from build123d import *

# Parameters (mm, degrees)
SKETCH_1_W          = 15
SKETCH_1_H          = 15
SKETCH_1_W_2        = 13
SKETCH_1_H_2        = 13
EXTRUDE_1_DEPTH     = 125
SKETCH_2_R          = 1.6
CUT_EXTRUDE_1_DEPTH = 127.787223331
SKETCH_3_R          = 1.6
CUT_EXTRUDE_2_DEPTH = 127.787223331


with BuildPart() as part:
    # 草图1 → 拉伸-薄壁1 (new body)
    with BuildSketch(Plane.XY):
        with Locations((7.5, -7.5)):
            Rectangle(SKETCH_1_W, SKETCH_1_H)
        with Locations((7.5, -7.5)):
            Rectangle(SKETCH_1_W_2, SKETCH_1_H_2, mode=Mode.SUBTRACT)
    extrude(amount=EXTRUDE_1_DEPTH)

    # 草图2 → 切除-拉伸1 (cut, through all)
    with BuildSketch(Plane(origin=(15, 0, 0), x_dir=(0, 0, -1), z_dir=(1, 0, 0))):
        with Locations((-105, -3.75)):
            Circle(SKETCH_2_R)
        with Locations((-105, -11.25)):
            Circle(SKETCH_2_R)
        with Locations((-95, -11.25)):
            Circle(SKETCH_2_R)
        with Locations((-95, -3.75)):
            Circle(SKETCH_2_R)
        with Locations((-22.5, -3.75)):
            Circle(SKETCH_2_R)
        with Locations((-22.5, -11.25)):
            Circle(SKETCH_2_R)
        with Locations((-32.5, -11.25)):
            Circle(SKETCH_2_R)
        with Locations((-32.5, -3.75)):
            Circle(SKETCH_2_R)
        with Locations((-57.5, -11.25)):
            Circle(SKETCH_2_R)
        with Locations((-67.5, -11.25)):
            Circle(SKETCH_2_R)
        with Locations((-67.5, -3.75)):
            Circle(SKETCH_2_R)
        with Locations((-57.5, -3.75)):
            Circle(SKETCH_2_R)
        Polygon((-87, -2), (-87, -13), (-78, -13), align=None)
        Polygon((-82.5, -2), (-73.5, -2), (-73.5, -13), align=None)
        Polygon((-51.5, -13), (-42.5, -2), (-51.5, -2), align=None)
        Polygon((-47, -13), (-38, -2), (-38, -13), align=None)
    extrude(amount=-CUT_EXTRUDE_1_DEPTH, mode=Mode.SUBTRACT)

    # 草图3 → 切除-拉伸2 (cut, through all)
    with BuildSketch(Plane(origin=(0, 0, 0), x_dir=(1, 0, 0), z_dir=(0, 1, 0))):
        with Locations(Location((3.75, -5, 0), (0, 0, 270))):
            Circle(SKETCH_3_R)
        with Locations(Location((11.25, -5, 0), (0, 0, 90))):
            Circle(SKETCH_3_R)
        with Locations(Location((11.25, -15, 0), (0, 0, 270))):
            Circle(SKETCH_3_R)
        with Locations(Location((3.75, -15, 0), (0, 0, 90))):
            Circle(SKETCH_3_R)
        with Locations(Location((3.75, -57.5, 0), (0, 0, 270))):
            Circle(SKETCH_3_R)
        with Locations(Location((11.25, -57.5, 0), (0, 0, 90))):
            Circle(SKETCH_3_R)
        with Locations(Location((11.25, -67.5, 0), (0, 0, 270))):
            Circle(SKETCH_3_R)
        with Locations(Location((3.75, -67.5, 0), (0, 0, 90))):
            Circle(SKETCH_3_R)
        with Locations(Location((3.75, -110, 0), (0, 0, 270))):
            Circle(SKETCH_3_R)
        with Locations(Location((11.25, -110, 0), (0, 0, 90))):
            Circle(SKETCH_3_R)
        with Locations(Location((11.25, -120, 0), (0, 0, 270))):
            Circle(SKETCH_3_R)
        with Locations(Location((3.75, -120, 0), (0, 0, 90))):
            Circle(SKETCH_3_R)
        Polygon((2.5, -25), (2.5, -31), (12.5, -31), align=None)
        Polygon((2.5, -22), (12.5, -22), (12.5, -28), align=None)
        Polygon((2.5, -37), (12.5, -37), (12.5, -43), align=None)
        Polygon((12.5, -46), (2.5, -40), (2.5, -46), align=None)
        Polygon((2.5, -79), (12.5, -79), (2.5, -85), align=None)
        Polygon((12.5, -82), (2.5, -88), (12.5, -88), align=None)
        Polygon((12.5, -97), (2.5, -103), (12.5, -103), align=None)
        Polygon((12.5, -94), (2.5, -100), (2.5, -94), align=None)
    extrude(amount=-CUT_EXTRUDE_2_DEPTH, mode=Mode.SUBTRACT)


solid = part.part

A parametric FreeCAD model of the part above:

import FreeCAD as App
import Part
import Sketcher
from FreeCAD import Vector
Q = App.Units.Quantity

doc = App.newDocument("Part")
body = doc.addObject("PartDesign::Body", "Body")

sketch1 = doc.addObject("Sketcher::SketchObject", "Sketch")
body.addObject(sketch1)
sketch1.AttachmentSupport = (doc.XY_Plane, [""])
sketch1.MapMode = "FlatFace"
sketch1.addGeometry([
    Part.LineSegment(Vector(0, 0, 0), Vector(0, -15, 0)),
    Part.LineSegment(Vector(0, -15, 0), Vector(15, -15, 0)),
    Part.LineSegment(Vector(15, -15, 0), Vector(15, 0, 0)),
    Part.LineSegment(Vector(15, 0, 0), Vector(0, 0, 0)),
    Part.LineSegment(Vector(14, -14, 0), Vector(1, -14, 0)),
    Part.LineSegment(Vector(1, -14, 0), Vector(1, -1, 0)),
    Part.LineSegment(Vector(1, -1, 0), Vector(14, -1, 0)),
    Part.LineSegment(Vector(14, -1, 0), Vector(14, -14, 0)),
], False)
sketch1.addConstraint([
    Sketcher.Constraint("Coincident", 0, 2, 1, 1),
    Sketcher.Constraint("Coincident", 1, 2, 2, 1),
    Sketcher.Constraint("Coincident", 2, 2, 3, 1),
    Sketcher.Constraint("Coincident", 3, 2, 0, 1),
    Sketcher.Constraint("Coincident", 4, 2, 5, 1),
    Sketcher.Constraint("Coincident", 5, 2, 6, 1),
    Sketcher.Constraint("Coincident", 6, 2, 7, 1),
    Sketcher.Constraint("Coincident", 7, 2, 4, 1),
    Sketcher.Constraint("Vertical", 0),
    Sketcher.Constraint("Horizontal", 1),
    Sketcher.Constraint("Vertical", 2),
    Sketcher.Constraint("Horizontal", 3),
    Sketcher.Constraint("Horizontal", 4),
    Sketcher.Constraint("Vertical", 5),
    Sketcher.Constraint("Horizontal", 6),
    Sketcher.Constraint("Vertical", 7),
    Sketcher.Constraint("Coincident", 3, 2, -1, 1),
    Sketcher.Constraint("Equal", 3, 0),
    Sketcher.Constraint("Equal", 6, 5),
    Sketcher.Constraint("DistanceX", 1, 1, 1, 2, Q("15 mm")),
    Sketcher.Constraint("DistanceX", 4, 2, 4, 1, Q("13 mm")),
    Sketcher.Constraint("DistanceX", -1, 1, 4, 2, Q("1 mm")),
    Sketcher.Constraint("DistanceY", 4, 2, -1, 1, Q("14 mm")),
])
pad1 = doc.addObject("PartDesign::Pad", "Pad")
body.addObject(pad1)
pad1.Profile = sketch1
pad1.Length = 125

sketch2 = doc.addObject("Sketcher::SketchObject", "Sketch001")
body.addObject(sketch2)
sketch2.AttachmentSupport = (doc.YZ_Plane, [""])
sketch2.MapMode = "FlatFace"
sketch2.AttachmentOffset = App.Placement(Vector(0, 0, 15), App.Rotation())
sketch2.addGeometry([
    Part.Circle(Vector(-3.8, 105, 0), Vector(0, 0, 1), 1.6),
    Part.Circle(Vector(-11.2, 105, 0), Vector(0, 0, 1), 1.6),
    Part.Circle(Vector(-11.2, 95, 0), Vector(0, 0, 1), 1.6),
    Part.Circle(Vector(-3.8, 95, 0), Vector(0, 0, 1), 1.6),
    Part.Circle(Vector(-3.8, 22.5, 0), Vector(0, 0, 1), 1.6),
    Part.Circle(Vector(-11.2, 22.5, 0), Vector(0, 0, 1), 1.6),
    Part.Circle(Vector(-11.2, 32.5, 0), Vector(0, 0, 1), 1.6),
    Part.Circle(Vector(-3.8, 32.5, 0), Vector(0, 0, 1), 1.6),
    Part.Circle(Vector(-11.2, 57.5, 0), Vector(0, 0, 1), 1.6),
    Part.Circle(Vector(-11.2, 67.5, 0), Vector(0, 0, 1), 1.6),
    Part.Circle(Vector(-3.8, 67.5, 0), Vector(0, 0, 1), 1.6),
    Part.Circle(Vector(-3.8, 57.5, 0), Vector(0, 0, 1), 1.6),
    Part.LineSegment(Vector(-2, 87, 0), Vector(-13, 87, 0)),
    Part.LineSegment(Vector(-13, 87, 0), Vector(-13, 78, 0)),
    Part.LineSegment(Vector(-13, 78, 0), Vector(-2, 87, 0)),
    Part.LineSegment(Vector(-2, 73.5, 0), Vector(-2, 82.5, 0)),
    Part.LineSegment(Vector(-2, 82.5, 0), Vector(-13, 73.5, 0)),
    Part.LineSegment(Vector(-13, 73.5, 0), Vector(-2, 73.5, 0)),
    Part.LineSegment(Vector(-13, 51.5, 0), Vector(-2, 42.5, 0)),
    Part.LineSegment(Vector(-2, 42.5, 0), Vector(-2, 51.5, 0)),
    Part.LineSegment(Vector(-2, 51.5, 0), Vector(-13, 51.5, 0)),
    Part.LineSegment(Vector(-2, 38, 0), Vector(-13, 47, 0)),
    Part.LineSegment(Vector(-13, 47, 0), Vector(-13, 38, 0)),
    Part.LineSegment(Vector(-13, 38, 0), Vector(-2, 38, 0)),
], False)
sketch2.addConstraint([
    Sketcher.Constraint("Coincident", 12, 2, 13, 1),
    Sketcher.Constraint("Coincident", 13, 2, 14, 1),
    Sketcher.Constraint("Coincident", 14, 2, 12, 1),
    Sketcher.Constraint("Coincident", 15, 2, 16, 1),
    Sketcher.Constraint("Coincident", 16, 2, 17, 1),
    Sketcher.Constraint("Coincident", 17, 2, 15, 1),
    Sketcher.Constraint("Coincident", 18, 2, 19, 1),
    Sketcher.Constraint("Coincident", 19, 2, 20, 1),
    Sketcher.Constraint("Coincident", 20, 2, 18, 1),
    Sketcher.Constraint("Coincident", 21, 2, 22, 1),
    Sketcher.Constraint("Coincident", 22, 2, 23, 1),
    Sketcher.Constraint("Coincident", 23, 2, 21, 1),
    Sketcher.Constraint("Horizontal", 12),
    Sketcher.Constraint("Vertical", 13),
    Sketcher.Constraint("Vertical", 15),
    Sketcher.Constraint("Horizontal", 17),
    Sketcher.Constraint("Vertical", 19),
    Sketcher.Constraint("Horizontal", 20),
    Sketcher.Constraint("Vertical", 22),
    Sketcher.Constraint("Horizontal", 23),
    Sketcher.Constraint("Equal", 0, 1),
    Sketcher.Constraint("Equal", 1, 2),
    Sketcher.Constraint("Equal", 2, 3),
    Sketcher.Constraint("Equal", 3, 4),
    Sketcher.Constraint("Equal", 4, 5),
    Sketcher.Constraint("Equal", 5, 6),
    Sketcher.Constraint("Equal", 6, 7),
    Sketcher.Constraint("Equal", 7, 8),
    Sketcher.Constraint("Equal", 8, 9),
    Sketcher.Constraint("Equal", 9, 10),
    Sketcher.Constraint("Equal", 10, 11),
    Sketcher.Constraint("Parallel", 14, 16),
    Sketcher.Constraint("Parallel", 18, 21),
    Sketcher.Constraint("Horizontal", 0, 3, 1, 3),
    Sketcher.Constraint("Horizontal", 2, 3, 3, 3),
    Sketcher.Constraint("Horizontal", 4, 3, 5, 3),
    Sketcher.Constraint("Horizontal", 6, 3, 7, 3),
    Sketcher.Constraint("Horizontal", 9, 3, 10, 3),
    Sketcher.Constraint("Horizontal", 8, 3, 11, 3),
    Sketcher.Constraint("Vertical", 1, 3, 2, 3),
    Sketcher.Constraint("Vertical", 0, 3, 3, 3),
    Sketcher.Constraint("Vertical", 3, 3, 4, 3),
    Sketcher.Constraint("Vertical", 2, 3, 5, 3),
    Sketcher.Constraint("Vertical", 5, 3, 6, 3),
    Sketcher.Constraint("Vertical", 4, 3, 7, 3),
    Sketcher.Constraint("Vertical", 6, 3, 8, 3),
    Sketcher.Constraint("Vertical", 8, 3, 9, 3),
    Sketcher.Constraint("Vertical", 7, 3, 10, 3),
    Sketcher.Constraint("Vertical", 10, 3, 11, 3),
    Sketcher.Constraint("Vertical", 14, 2, 15, 2),
    Sketcher.Constraint("Vertical", 13, 2, 16, 2),
    Sketcher.Constraint("Vertical", 17, 2, 18, 2),
    Sketcher.Constraint("Vertical", 16, 2, 20, 2),
    Sketcher.Constraint("Vertical", 20, 2, 21, 2),
    Sketcher.Constraint("Vertical", 19, 2, 23, 2),
    Sketcher.Constraint("Equal", 15, 19),
    Sketcher.Constraint("Diameter", 0, Q("3.2 mm")),
    Sketcher.Constraint("DistanceX", 12, 2, 12, 1, Q("11 mm")),
    Sketcher.Constraint("DistanceY", 13, 2, 13, 1, Q("9 mm")),
    Sketcher.Constraint("DistanceY", -1, 1, 0, 3, Q("105 mm")),
    Sketcher.Constraint("DistanceY", -1, 1, 2, 3, Q("95 mm")),
    Sketcher.Constraint("DistanceX", 12, 2, -1, 1, Q("13 mm")),
    Sketcher.Constraint("DistanceY", -1, 1, 12, 2, Q("87 mm")),
    Sketcher.Constraint("DistanceY", -1, 1, 21, 2, Q("47 mm")),
    Sketcher.Constraint("DistanceY", 5, 3, 6, 3, Q("10 mm")),
    Sketcher.Constraint("DistanceY", 6, 3, 8, 3, Q("25 mm")),
    Sketcher.Constraint("DistanceY", 8, 3, 9, 3, Q("10 mm")),
    Sketcher.Constraint("DistanceY", 10, 3, 15, 2, Q("15 mm")),
    Sketcher.Constraint("DistanceY", 7, 3, 18, 2, Q("10 mm")),
    Sketcher.Constraint("DistanceY", -1, 1, 4, 3, Q("22.5 mm")),
    Sketcher.Constraint("DistanceX", 1, 3, 0, 3, Q("7.5 mm")),
    Sketcher.Constraint("DistanceX", 0, 3, -1, 1, Q("3.75 mm")),
])
pocket1 = doc.addObject("PartDesign::Pocket", "Pocket")
body.addObject(pocket1)
pocket1.Profile = sketch2
pocket1.Type = "ThroughAll"

sketch3 = doc.addObject("Sketcher::SketchObject", "Sketch002")
body.addObject(sketch3)
sketch3.AttachmentSupport = (doc.XZ_Plane, [""])
sketch3.MapMode = "FlatFace"
sketch3.addGeometry([
    Part.Circle(Vector(3.8, 5, 0), Vector(0, 0, 1), 1.6),
    Part.Circle(Vector(11.2, 5, 0), Vector(0, 0, 1), 1.6),
    Part.Circle(Vector(11.2, 15, 0), Vector(0, 0, 1), 1.6),
    Part.Circle(Vector(3.8, 15, 0), Vector(0, 0, 1), 1.6),
    Part.Circle(Vector(3.8, 57.5, 0), Vector(0, 0, 1), 1.6),
    Part.Circle(Vector(11.2, 57.5, 0), Vector(0, 0, 1), 1.6),
    Part.Circle(Vector(11.2, 67.5, 0), Vector(0, 0, 1), 1.6),
    Part.Circle(Vector(3.8, 67.5, 0), Vector(0, 0, 1), 1.6),
    Part.Circle(Vector(3.8, 110, 0), Vector(0, 0, 1), 1.6),
    Part.Circle(Vector(11.2, 110, 0), Vector(0, 0, 1), 1.6),
    Part.Circle(Vector(11.2, 120, 0), Vector(0, 0, 1), 1.6),
    Part.Circle(Vector(3.8, 120, 0), Vector(0, 0, 1), 1.6),
    Part.LineSegment(Vector(2.5, 25, 0), Vector(2.5, 31, 0)),
    Part.LineSegment(Vector(2.5, 31, 0), Vector(12.5, 31, 0)),
    Part.LineSegment(Vector(12.5, 31, 0), Vector(2.5, 25, 0)),
    Part.LineSegment(Vector(12.5, 22, 0), Vector(2.5, 22, 0)),
    Part.LineSegment(Vector(2.5, 22, 0), Vector(12.5, 28, 0)),
    Part.LineSegment(Vector(12.5, 28, 0), Vector(12.5, 22, 0)),
    Part.LineSegment(Vector(12.5, 37, 0), Vector(2.5, 37, 0)),
    Part.LineSegment(Vector(2.5, 37, 0), Vector(12.5, 43, 0)),
    Part.LineSegment(Vector(12.5, 43, 0), Vector(12.5, 37, 0)),
    Part.LineSegment(Vector(12.5, 46, 0), Vector(2.5, 40, 0)),
    Part.LineSegment(Vector(2.5, 40, 0), Vector(2.5, 46, 0)),
    Part.LineSegment(Vector(2.5, 46, 0), Vector(12.5, 46, 0)),
    Part.LineSegment(Vector(12.5, 79, 0), Vector(2.5, 79, 0)),
    Part.LineSegment(Vector(2.5, 79, 0), Vector(2.5, 85, 0)),
    Part.LineSegment(Vector(2.5, 85, 0), Vector(12.5, 79, 0)),
    Part.LineSegment(Vector(12.5, 82, 0), Vector(2.5, 88, 0)),
    Part.LineSegment(Vector(2.5, 88, 0), Vector(12.5, 88, 0)),
    Part.LineSegment(Vector(12.5, 88, 0), Vector(12.5, 82, 0)),
    Part.LineSegment(Vector(12.5, 97, 0), Vector(2.5, 103, 0)),
    Part.LineSegment(Vector(2.5, 103, 0), Vector(12.5, 103, 0)),
    Part.LineSegment(Vector(12.5, 103, 0), Vector(12.5, 97, 0)),
    Part.LineSegment(Vector(2.5, 100, 0), Vector(12.5, 94, 0)),
    Part.LineSegment(Vector(12.5, 94, 0), Vector(2.5, 94, 0)),
    Part.LineSegment(Vector(2.5, 94, 0), Vector(2.5, 100, 0)),
], False)
sketch3.addConstraint([
    Sketcher.Constraint("Coincident", 12, 2, 13, 1),
    Sketcher.Constraint("Coincident", 13, 2, 14, 1),
    Sketcher.Constraint("Coincident", 14, 2, 12, 1),
    Sketcher.Constraint("Coincident", 15, 2, 16, 1),
    Sketcher.Constraint("Coincident", 16, 2, 17, 1),
    Sketcher.Constraint("Coincident", 17, 2, 15, 1),
    Sketcher.Constraint("Coincident", 18, 2, 19, 1),
    Sketcher.Constraint("Coincident", 19, 2, 20, 1),
    Sketcher.Constraint("Coincident", 20, 2, 18, 1),
    Sketcher.Constraint("Coincident", 21, 2, 22, 1),
    Sketcher.Constraint("Coincident", 22, 2, 23, 1),
    Sketcher.Constraint("Coincident", 23, 2, 21, 1),
    Sketcher.Constraint("Coincident", 24, 2, 25, 1),
    Sketcher.Constraint("Coincident", 25, 2, 26, 1),
    Sketcher.Constraint("Coincident", 26, 2, 24, 1),
    Sketcher.Constraint("Coincident", 27, 2, 28, 1),
    Sketcher.Constraint("Coincident", 28, 2, 29, 1),
    Sketcher.Constraint("Coincident", 29, 2, 27, 1),
    Sketcher.Constraint("Coincident", 30, 2, 31, 1),
    Sketcher.Constraint("Coincident", 31, 2, 32, 1),
    Sketcher.Constraint("Coincident", 32, 2, 30, 1),
    Sketcher.Constraint("Coincident", 33, 2, 34, 1),
    Sketcher.Constraint("Coincident", 34, 2, 35, 1),
    Sketcher.Constraint("Coincident", 35, 2, 33, 1),
    Sketcher.Constraint("Vertical", 12),
    Sketcher.Constraint("Horizontal", 13),
    Sketcher.Constraint("Horizontal", 15),
    Sketcher.Constraint("Vertical", 17),
    Sketcher.Constraint("Horizontal", 18),
    Sketcher.Constraint("Vertical", 20),
    Sketcher.Constraint("Vertical", 22),
    Sketcher.Constraint("Horizontal", 23),
    Sketcher.Constraint("Horizontal", 24),
    Sketcher.Constraint("Vertical", 25),
    Sketcher.Constraint("Horizontal", 28),
    Sketcher.Constraint("Vertical", 29),
    Sketcher.Constraint("Horizontal", 31),
    Sketcher.Constraint("Vertical", 32),
    Sketcher.Constraint("Horizontal", 34),
    Sketcher.Constraint("Vertical", 35),
    Sketcher.Constraint("Equal", 0, 1),
    Sketcher.Constraint("Equal", 1, 2),
    Sketcher.Constraint("Equal", 2, 3),
    Sketcher.Constraint("Equal", 3, 4),
    Sketcher.Constraint("Equal", 4, 5),
    Sketcher.Constraint("Equal", 5, 6),
    Sketcher.Constraint("Equal", 6, 7),
    Sketcher.Constraint("Equal", 7, 8),
    Sketcher.Constraint("Equal", 8, 9),
    Sketcher.Constraint("Equal", 9, 10),
    Sketcher.Constraint("Equal", 10, 11),
    Sketcher.Constraint("Parallel", 14, 16),
    Sketcher.Constraint("Parallel", 16, 19),
    Sketcher.Constraint("Parallel", 19, 21),
    Sketcher.Constraint("Parallel", 26, 27),
    Sketcher.Constraint("Parallel", 27, 30),
    Sketcher.Constraint("Parallel", 30, 33),
    Sketcher.Constraint("Horizontal", 0, 3, 1, 3),
    Sketcher.Constraint("Horizontal", 2, 3, 3, 3),
    Sketcher.Constraint("Horizontal", 4, 3, 5, 3),
    Sketcher.Constraint("Horizontal", 6, 3, 7, 3),
    Sketcher.Constraint("Horizontal", 8, 3, 9, 3),
    Sketcher.Constraint("Horizontal", 10, 3, 11, 3),
    Sketcher.Constraint("Vertical", 1, 3, 2, 3),
    Sketcher.Constraint("Vertical", 0, 3, 3, 3),
    Sketcher.Constraint("Vertical", 3, 3, 4, 3),
    Sketcher.Constraint("Vertical", 2, 3, 5, 3),
    Sketcher.Constraint("Vertical", 5, 3, 6, 3),
    Sketcher.Constraint("Vertical", 4, 3, 7, 3),
    Sketcher.Constraint("Vertical", 7, 3, 8, 3),
    Sketcher.Constraint("Vertical", 6, 3, 9, 3),
    Sketcher.Constraint("Vertical", 9, 3, 10, 3),
    Sketcher.Constraint("Vertical", 8, 3, 11, 3),
    Sketcher.Constraint("Vertical", 14, 2, 15, 2),
    Sketcher.Constraint("Vertical", 13, 2, 16, 2),
    Sketcher.Constraint("Vertical", 15, 2, 18, 2),
    Sketcher.Constraint("Vertical", 17, 2, 19, 2),
    Sketcher.Constraint("Vertical", 18, 2, 21, 2),
    Sketcher.Constraint("Vertical", 20, 2, 23, 2),
    Sketcher.Constraint("Vertical", 22, 2, 24, 2),
    Sketcher.Constraint("Vertical", 23, 2, 26, 2),
    Sketcher.Constraint("Vertical", 25, 2, 27, 2),
    Sketcher.Constraint("Vertical", 26, 2, 28, 2),
    Sketcher.Constraint("Vertical", 27, 2, 30, 2),
    Sketcher.Constraint("Vertical", 29, 2, 31, 2),
    Sketcher.Constraint("Vertical", 32, 2, 33, 2),
    Sketcher.Constraint("Vertical", 30, 2, 34, 2),
    Sketcher.Constraint("Equal", 22, 25),
    Sketcher.Constraint("Diameter", 0, Q("3.2 mm")),
    Sketcher.Constraint("DistanceX", 13, 1, 13, 2, Q("10 mm")),
    Sketcher.Constraint("DistanceY", 12, 1, 12, 2, Q("6 mm")),
    Sketcher.Constraint("DistanceY", -1, 1, 0, 3, Q("5 mm")),
    Sketcher.Constraint("DistanceY", -1, 1, 2, 3, Q("15 mm")),
    Sketcher.Constraint("DistanceY", -1, 1, 8, 3, Q("110 mm")),
    Sketcher.Constraint("DistanceY", -1, 1, 10, 3, Q("120 mm")),
    Sketcher.Constraint("DistanceY", -1, 1, 12, 2, Q("31 mm")),
    Sketcher.Constraint("DistanceY", -1, 1, 15, 2, Q("22 mm")),
    Sketcher.Constraint("DistanceY", -1, 1, 18, 2, Q("37 mm")),
    Sketcher.Constraint("DistanceY", -1, 1, 21, 2, Q("40 mm")),
    Sketcher.Constraint("DistanceY", -1, 1, 24, 2, Q("79 mm")),
    Sketcher.Constraint("DistanceY", -1, 1, 27, 2, Q("88 mm")),
    Sketcher.Constraint("DistanceY", -1, 1, 30, 2, Q("103 mm")),
    Sketcher.Constraint("DistanceY", -1, 1, 33, 2, Q("94 mm")),
    Sketcher.Constraint("DistanceY", 5, 3, 6, 3, Q("10 mm")),
    Sketcher.Constraint("DistanceY", -1, 1, 4, 3, Q("57.5 mm")),
    Sketcher.Constraint("DistanceX", -1, 1, 12, 2, Q("2.5 mm")),
    Sketcher.Constraint("DistanceX", 0, 3, 1, 3, Q("7.5 mm")),
    Sketcher.Constraint("DistanceX", -1, 1, 0, 3, Q("3.75 mm")),
])
pocket2 = doc.addObject("PartDesign::Pocket", "Pocket001")
body.addObject(pocket2)
pocket2.Profile = sketch3
pocket2.Type = "ThroughAll"
pocket2.Reversed = True

doc.recompute()
